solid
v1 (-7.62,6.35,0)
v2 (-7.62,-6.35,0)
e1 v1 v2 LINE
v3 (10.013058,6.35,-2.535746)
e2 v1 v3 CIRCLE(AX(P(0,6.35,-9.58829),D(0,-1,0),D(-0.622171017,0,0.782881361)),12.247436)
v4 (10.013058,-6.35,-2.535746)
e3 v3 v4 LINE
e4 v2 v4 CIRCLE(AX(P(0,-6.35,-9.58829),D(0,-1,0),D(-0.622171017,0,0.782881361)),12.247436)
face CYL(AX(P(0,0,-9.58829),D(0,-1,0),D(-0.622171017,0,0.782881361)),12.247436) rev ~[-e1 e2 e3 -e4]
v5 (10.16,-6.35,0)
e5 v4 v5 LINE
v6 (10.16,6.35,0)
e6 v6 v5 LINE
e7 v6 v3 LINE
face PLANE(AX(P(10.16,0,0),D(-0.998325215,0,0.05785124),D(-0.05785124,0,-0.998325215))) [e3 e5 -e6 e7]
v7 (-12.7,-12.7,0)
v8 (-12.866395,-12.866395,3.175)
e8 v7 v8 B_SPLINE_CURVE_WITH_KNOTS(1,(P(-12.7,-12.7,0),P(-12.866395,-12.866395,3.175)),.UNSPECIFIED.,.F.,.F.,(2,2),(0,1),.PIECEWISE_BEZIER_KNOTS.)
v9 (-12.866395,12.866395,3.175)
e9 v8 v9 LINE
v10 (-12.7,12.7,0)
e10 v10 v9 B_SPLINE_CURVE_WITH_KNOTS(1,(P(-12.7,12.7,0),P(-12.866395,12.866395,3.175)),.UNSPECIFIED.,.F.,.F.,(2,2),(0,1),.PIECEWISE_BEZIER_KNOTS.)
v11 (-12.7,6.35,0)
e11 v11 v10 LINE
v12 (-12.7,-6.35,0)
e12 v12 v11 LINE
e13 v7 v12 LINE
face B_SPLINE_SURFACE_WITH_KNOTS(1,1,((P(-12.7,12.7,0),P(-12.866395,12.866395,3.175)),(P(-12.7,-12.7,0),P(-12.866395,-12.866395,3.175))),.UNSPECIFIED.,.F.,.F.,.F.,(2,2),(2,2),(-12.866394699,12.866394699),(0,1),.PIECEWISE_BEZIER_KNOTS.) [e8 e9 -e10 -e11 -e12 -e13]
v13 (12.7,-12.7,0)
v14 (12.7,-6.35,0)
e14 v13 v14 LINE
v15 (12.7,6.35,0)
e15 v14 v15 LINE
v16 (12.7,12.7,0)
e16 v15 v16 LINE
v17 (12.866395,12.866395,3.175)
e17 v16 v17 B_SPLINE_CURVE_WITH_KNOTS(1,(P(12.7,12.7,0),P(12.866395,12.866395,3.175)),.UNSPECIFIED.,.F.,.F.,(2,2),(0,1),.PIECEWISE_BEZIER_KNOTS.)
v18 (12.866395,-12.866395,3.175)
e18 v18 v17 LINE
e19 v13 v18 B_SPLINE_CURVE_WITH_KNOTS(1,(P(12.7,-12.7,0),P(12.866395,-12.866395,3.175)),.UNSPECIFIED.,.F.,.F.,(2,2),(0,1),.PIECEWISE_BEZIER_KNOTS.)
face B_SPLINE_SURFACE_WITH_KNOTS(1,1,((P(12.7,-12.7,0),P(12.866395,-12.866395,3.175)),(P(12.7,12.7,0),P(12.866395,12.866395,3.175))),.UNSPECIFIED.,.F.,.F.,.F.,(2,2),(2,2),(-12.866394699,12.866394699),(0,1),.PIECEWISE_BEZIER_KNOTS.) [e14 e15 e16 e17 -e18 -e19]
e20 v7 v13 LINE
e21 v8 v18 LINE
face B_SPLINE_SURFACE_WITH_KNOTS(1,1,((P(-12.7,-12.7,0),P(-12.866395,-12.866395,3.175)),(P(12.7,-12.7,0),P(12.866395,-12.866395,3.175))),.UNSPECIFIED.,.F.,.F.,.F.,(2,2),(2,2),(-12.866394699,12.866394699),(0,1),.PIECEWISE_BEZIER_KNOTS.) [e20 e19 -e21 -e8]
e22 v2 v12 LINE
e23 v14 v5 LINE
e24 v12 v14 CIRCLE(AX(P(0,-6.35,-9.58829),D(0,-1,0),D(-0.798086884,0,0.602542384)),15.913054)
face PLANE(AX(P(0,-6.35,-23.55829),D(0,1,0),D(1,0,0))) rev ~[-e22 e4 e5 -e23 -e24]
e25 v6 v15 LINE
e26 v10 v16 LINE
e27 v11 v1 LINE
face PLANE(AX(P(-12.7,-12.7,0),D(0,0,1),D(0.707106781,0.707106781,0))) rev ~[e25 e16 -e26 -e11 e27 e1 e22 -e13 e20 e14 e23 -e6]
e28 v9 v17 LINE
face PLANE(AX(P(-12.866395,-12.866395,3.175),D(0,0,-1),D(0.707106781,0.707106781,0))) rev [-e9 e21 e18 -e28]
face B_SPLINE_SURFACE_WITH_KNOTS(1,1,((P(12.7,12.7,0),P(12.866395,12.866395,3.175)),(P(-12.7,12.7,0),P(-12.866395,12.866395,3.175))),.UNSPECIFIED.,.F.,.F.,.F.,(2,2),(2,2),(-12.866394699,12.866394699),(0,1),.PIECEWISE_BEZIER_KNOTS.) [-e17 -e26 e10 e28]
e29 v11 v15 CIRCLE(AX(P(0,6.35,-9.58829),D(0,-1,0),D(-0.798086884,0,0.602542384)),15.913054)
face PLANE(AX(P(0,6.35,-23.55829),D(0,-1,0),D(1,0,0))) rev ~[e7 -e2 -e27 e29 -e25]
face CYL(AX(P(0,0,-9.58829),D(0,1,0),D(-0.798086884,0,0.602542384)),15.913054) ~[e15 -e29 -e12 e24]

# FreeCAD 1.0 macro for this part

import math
import FreeCAD as App
import Part
import Sketcher

V = App.Vector
Q = App.Units.Quantity

doc = App.newDocument("Part")
params = doc.addObject("Spreadsheet::Sheet", "Params")
for row, (alias, value) in enumerate([
    ("sketch1_width", "1 in"),
    ("pad1_length", "0.125 in"),
    ("pad1_taper", "3 deg"),
    ("sketch2_width", "0.2 in"),
    ("sketch2_height", "0.5 in"),
    ("sketch3_radius", "0.55 in"),
], start=1):
    params.set(f"A{row}", alias)
    params.set(f"B{row}", "=" + value)
    params.setAlias(f"B{row}", alias)

body = doc.addObject("PartDesign::Body", "Body")

# Sketch on XY plane
sketch1 = doc.addObject("Sketcher::SketchObject", "Sketch")
body.addObject(sketch1)
sketch1.AttachmentSupport = (doc.XY_Plane, [""])
sketch1.MapMode = "FlatFace"
sketch1.addGeometry([
    Part.LineSegment(V(-12.7, 12.7, 0), V(-12.7, -12.7, 0)),
    Part.LineSegment(V(-12.7, -12.7, 0), V(12.7, -12.7, 0)),
    Part.LineSegment(V(12.7, -12.7, 0), V(12.7, 12.7, 0)),
    Part.LineSegment(V(12.7, 12.7, 0), V(-12.7, 12.7, 0)),
], False)
sketch1.addConstraint([
    Sketcher.Constraint("Coincident", 0, 2, 1, 1),
    Sketcher.Constraint("Coincident", 1, 2, 2, 1),
    Sketcher.Constraint("Coincident", 2, 2, 3, 1),
    Sketcher.Constraint("Coincident", 3, 2, 0, 1),
    Sketcher.Constraint("Vertical", 0),
    Sketcher.Constraint("Horizontal", 1),
    Sketcher.Constraint("Vertical", 2),
    Sketcher.Constraint("Horizontal", 3),
    Sketcher.Constraint("Symmetric", 0, 2, 2, 2, -1, 1),
    Sketcher.Constraint("Equal", 3, 0),
    Sketcher.Constraint("DistanceX", 1, 1, 1, 2, Q("1 in")),
])
sketch1.setExpression("Constraints[10]", "Params.sketch1_width")
pad1 = doc.addObject("PartDesign::Pad", "Pad")
body.addObject(pad1)
pad1.Profile = sketch1
pad1.setExpression("Length", "Params.pad1_length")
pad1.setExpression("TaperAngle", "Params.pad1_taper")

# Sketch on XY plane
sketch2 = doc.addObject("Sketcher::SketchObject", "Sketch001")
body.addObject(sketch2)
sketch2.AttachmentSupport = (doc.XY_Plane, [""])
sketch2.MapMode = "FlatFace"
sketch2.addGeometry([
    Part.LineSegment(V(-12.7, -6.35, 0), V(-12.7, 6.35, 0)),
    Part.LineSegment(V(-12.7, 6.35, 0), V(-7.62, 6.35, 0)),
    Part.LineSegment(V(-7.62, 6.35, 0), V(-7.62, -6.35, 0)),
    Part.LineSegment(V(-7.62, -6.35, 0), V(-12.7, -6.35, 0)),
], False)
sketch2.addConstraint([
    Sketcher.Constraint("Coincident", 0, 2, 1, 1),
    Sketcher.Constraint("Coincident", 1, 2, 2, 1),
    Sketcher.Constraint("Coincident", 2, 2, 3, 1),
    Sketcher.Constraint("Coincident", 3, 2, 0, 1),
    Sketcher.Constraint("Vertical", 0),
    Sketcher.Constraint("Horizontal", 1),
    Sketcher.Constraint("Vertical", 2),
    Sketcher.Constraint("Horizontal", 3),
    Sketcher.Constraint("DistanceX", 1, 1, 1, 2, Q("0.2 in")),
    Sketcher.Constraint("DistanceY", 0, 1, 0, 2, Q("0.5 in")),
    Sketcher.Constraint("DistanceX", 0, 2, -1, 1, Q("0.5 in")),
    Sketcher.Constraint("DistanceY", -1, 1, 0, 2, Q("0.25 in")),
])
sketch2.setExpression("Constraints[8]", "Params.sketch2_width")
sketch2.setExpression("Constraints[9]", "Params.sketch2_height")

# Sketch on XZ plane
sketch3 = doc.addObject("Sketcher::SketchObject", "Sketch002")
body.addObject(sketch3)
sketch3.AttachmentSupport = (doc.XZ_Plane, [""])
sketch3.MapMode = "FlatFace"
sketch3.addGeometry(Part.ArcOfCircle(Part.Circle(V(0, -9.58829, 0), V(0, 0, 1), 13.97), math.radians(136.658242), math.radians(403.341758)), False)
sketch3.addConstraint([
    Sketcher.Constraint("Symmetric", 0, 1, 0, 2, -1, 1),
    Sketcher.Constraint("PointOnObject", 0, 3, -2),
    Sketcher.Constraint("Radius", 0, Q("0.55 in")),
    Sketcher.Constraint("DistanceX", 0, 1, -1, 1, Q("0.4 in")),
])
sketch3.setExpression("Constraints[2]", "Params.sketch3_radius")
doc.recompute()

additivepipe = doc.addObject("PartDesign::AdditivePipe", "AdditivePipe")
body.addObject(additivepipe)
additivepipe.Profile = sketch2
additivepipe.Spine = (sketch3, ["Edge1"])

doc.recompute()
